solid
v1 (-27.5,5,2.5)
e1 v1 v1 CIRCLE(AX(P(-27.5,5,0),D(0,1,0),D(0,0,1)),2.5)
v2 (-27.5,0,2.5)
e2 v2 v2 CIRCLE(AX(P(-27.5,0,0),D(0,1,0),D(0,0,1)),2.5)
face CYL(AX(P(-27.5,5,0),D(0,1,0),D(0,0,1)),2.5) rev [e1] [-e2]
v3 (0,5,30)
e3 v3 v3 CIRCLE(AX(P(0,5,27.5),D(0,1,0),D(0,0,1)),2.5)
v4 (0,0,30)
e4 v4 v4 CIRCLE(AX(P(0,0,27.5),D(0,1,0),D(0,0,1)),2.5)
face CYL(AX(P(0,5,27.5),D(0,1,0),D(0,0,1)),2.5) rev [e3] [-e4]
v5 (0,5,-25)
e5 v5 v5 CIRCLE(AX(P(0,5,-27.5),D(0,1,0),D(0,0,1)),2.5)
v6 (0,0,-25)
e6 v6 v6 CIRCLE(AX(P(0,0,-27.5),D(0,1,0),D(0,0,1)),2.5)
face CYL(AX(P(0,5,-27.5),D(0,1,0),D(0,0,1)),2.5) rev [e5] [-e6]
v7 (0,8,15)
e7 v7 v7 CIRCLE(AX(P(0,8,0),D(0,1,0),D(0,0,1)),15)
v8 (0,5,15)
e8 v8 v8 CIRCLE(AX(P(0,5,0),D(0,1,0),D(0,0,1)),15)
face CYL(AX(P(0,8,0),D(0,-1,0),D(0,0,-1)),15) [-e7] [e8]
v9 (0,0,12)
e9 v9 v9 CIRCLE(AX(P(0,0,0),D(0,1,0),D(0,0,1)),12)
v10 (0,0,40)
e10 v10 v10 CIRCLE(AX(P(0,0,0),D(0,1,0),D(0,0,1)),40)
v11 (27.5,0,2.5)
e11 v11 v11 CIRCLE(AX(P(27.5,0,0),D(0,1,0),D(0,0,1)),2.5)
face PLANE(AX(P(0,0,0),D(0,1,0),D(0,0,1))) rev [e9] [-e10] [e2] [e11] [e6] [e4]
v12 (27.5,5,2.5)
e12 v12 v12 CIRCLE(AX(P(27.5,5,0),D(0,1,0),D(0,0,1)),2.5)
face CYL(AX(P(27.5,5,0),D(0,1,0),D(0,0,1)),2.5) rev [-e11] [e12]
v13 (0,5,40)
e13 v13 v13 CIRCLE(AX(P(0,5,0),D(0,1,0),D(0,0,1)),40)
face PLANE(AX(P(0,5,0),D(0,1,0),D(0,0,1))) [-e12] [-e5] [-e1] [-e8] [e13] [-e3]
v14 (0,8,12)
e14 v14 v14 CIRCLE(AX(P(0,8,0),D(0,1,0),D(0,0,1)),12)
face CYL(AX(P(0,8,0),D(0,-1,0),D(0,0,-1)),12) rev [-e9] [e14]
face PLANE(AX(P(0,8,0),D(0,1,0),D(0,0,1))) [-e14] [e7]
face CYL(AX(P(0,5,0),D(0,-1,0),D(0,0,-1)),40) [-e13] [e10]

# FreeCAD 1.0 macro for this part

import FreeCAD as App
import Part
import Sketcher
from FreeCAD import Vector

doc = App.newDocument("Part")
params = doc.addObject("Spreadsheet::Sheet", "Params")
for row, (alias, value) in enumerate([
    ("sketch1_diameter", "80 mm"),
    ("pad1_length", "5 mm"),
    ("sketch2_diameter", "30 mm"),
    ("sketch2_diameter2", "24 mm"),
    ("pad2_length", "3 mm"),
    ("sketch3_diameter", "24 mm"),
    ("sketch4_diameter", "5 mm"),
    ("hole_diameter", "5 mm"),
], start=1):
    params.set(f"A{row}", alias)
    params.set(f"B{row}", "=" + value)
    params.setAlias(f"B{row}", alias)

body = doc.addObject("PartDesign::Body", "Body")

sketch1 = body.newObject("Sketcher::SketchObject", "Sketch")
sketch1.AttachmentSupport = (doc.getObject("XZ_Plane"), [""])
sketch1.MapMode = "FlatFace"
sketch1.addGeometry(Part.Circle(Vector(0, 0, 0), Vector(0, 0, 1), 40), False)
sketch1.addConstraint(Sketcher.Constraint("Coincident", 0, 3, -1, 1))
sketch1.addConstraint(Sketcher.Constraint("Diameter", 0, 80.0))
sketch1.setExpression("Constraints[1]", "Params.sketch1_diameter")
pad1 = body.newObject("PartDesign::Pad", "Pad")
pad1.Profile = sketch1
pad1.setExpression("Length", "Params.pad1_length")
pad1.Reversed = True

sketch2 = body.newObject("Sketcher::SketchObject", "Sketch001")
sketch2.AttachmentSupport = (doc.getObject("XZ_Plane"), [""])
sketch2.MapMode = "FlatFace"
sketch2.AttachmentOffset = App.Placement(Vector(0, 0, -5), App.Rotation())
sketch2.addGeometry(Part.Circle(Vector(0, 0, 0), Vector(0, 0, 1), 15), False)
sketch2.addGeometry(Part.Circle(Vector(0, 0, 0), Vector(0, 0, 1), 12), False)
sketch2.addConstraint(Sketcher.Constraint("Coincident", 0, 3, -1, 1))
sketch2.addConstraint(Sketcher.Constraint("Coincident", 1, 3, -1, 1))
sketch2.addConstraint(Sketcher.Constraint("Diameter", 0, 30.0))
sketch2.addConstraint(Sketcher.Constraint("Diameter", 1, 24.0))
sketch2.setExpression("Constraints[2]", "Params.sketch2_diameter")
sketch2.setExpression("Constraints[3]", "Params.sketch2_diameter2")
pad2 = body.newObject("PartDesign::Pad", "Pad001")
pad2.Profile = sketch2
pad2.setExpression("Length", "Params.pad2_length")
pad2.Reversed = True

sketch3 = body.newObject("Sketcher::SketchObject", "Sketch002")
sketch3.AttachmentSupport = (doc.getObject("XZ_Plane"), [""])
sketch3.MapMode = "FlatFace"
sketch3.AttachmentOffset = App.Placement(Vector(0, 0, -5), App.Rotation())
sketch3.addGeometry(Part.Circle(Vector(0, 0, 0), Vector(0, 0, 1), 12), False)
sketch3.addConstraint(Sketcher.Constraint("Coincident", 0, 3, -1, 1))
sketch3.addConstraint(Sketcher.Constraint("Diameter", 0, 24.0))
sketch3.setExpression("Constraints[1]", "Params.sketch3_diameter")
pocket1 = body.newObject("PartDesign::Pocket", "Pocket")
pocket1.Profile = sketch3
pocket1.Type = "ThroughAll"
pocket1.Reversed = True

sketch4 = body.newObject("Sketcher::SketchObject", "Sketch003")
sketch4.AttachmentSupport = (doc.getObject("XZ_Plane"), [""])
sketch4.MapMode = "FlatFace"
sketch4.AttachmentOffset = App.Placement(Vector(0, 0, -5), App.Rotation())
sketch4.addGeometry(Part.Circle(Vector(0, -27.5, 0), Vector(0, 0, 1), 2.5), False)
sketch4.addConstraint(Sketcher.Constraint("PointOnObject", 0, 3, -2))
sketch4.addConstraint(Sketcher.Constraint("Diameter", 0, 5.0))
sketch4.addConstraint(Sketcher.Constraint("DistanceY", 0, 3, -1, 1, 27.5))
sketch4.setExpression("Constraints[1]", "Params.sketch4_diameter")
doc.recompute()
hole = body.newObject("PartDesign::Hole", "Hole")
hole.Profile = sketch4
hole.ThreadType = "None"
hole.setExpression("Diameter", "Params.hole_diameter")
hole.DepthType = "ThroughAll"
hole.Reversed = True
doc.recompute()

polarpattern = body.newObject("PartDesign::PolarPattern", "PolarPattern")
polarpattern.Originals = [hole]
polarpattern.Axis = (doc.getObject("Y_Axis"), [""])
polarpattern.Angle = 360
polarpattern.Occurrences = 4
body.Tip = polarpattern

doc.recompute()
